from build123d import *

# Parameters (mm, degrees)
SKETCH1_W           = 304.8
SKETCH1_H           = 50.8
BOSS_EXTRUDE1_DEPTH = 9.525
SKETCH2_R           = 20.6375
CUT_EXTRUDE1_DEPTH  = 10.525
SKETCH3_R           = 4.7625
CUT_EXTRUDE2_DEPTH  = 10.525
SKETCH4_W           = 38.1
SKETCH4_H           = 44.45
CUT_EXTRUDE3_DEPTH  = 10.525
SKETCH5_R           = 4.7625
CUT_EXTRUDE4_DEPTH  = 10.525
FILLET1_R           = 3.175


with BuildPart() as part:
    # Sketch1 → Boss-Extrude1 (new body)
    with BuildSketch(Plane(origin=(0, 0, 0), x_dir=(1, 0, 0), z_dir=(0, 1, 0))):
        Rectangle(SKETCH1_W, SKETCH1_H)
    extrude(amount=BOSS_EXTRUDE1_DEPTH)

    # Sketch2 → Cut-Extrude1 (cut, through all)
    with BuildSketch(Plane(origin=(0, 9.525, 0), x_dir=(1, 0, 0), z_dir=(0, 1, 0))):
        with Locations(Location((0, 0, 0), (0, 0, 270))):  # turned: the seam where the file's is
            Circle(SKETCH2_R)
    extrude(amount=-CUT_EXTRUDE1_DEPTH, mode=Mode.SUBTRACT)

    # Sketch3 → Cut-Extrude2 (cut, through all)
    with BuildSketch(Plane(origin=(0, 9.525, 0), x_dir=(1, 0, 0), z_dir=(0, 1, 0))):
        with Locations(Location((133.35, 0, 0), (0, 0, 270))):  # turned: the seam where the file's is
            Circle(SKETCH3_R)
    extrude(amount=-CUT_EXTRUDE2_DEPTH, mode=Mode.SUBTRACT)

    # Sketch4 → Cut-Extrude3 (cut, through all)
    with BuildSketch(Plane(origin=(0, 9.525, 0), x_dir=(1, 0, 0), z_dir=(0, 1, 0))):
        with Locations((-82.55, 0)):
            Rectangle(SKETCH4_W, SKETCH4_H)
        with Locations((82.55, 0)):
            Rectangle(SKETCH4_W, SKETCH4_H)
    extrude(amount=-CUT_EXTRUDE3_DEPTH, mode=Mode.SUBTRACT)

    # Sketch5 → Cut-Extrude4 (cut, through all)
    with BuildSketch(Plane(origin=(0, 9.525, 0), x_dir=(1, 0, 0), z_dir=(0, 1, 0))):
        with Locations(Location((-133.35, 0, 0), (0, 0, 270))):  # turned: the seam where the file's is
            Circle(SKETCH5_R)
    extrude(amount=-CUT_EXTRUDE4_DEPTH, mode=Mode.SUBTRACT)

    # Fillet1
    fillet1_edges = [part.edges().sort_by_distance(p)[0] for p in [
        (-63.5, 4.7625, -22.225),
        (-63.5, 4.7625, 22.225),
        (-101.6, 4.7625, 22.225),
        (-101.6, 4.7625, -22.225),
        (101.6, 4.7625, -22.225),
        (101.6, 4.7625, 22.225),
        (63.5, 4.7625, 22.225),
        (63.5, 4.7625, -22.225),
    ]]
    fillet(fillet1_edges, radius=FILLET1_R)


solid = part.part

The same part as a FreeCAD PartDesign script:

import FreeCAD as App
import Part
import Sketcher

V = App.Vector
Q = App.Units.Quantity


def edges_at(feature, points):
    """Names of the edges that pass closest to the given points."""
    edges = feature.Shape.Edges
    near = lambda p: min(range(len(edges)), key=lambda i: edges[i].distToShape(Part.Vertex(*p))[0])
    return sorted({f"Edge{near(p) + 1}" for p in points})


def add_polygon(sketch, points):
    """Adds a closed chain of lines whose ends are joined by coincident constraints."""
    first, n = sketch.GeometryCount, len(points)
    for a, b in zip(points, points[1:] + points[:1]):
        sketch.addGeometry(Part.LineSegment(App.Vector(*a, 0), App.Vector(*b, 0)), False)
    for i in range(n):
        sketch.addConstraint(Sketcher.Constraint("Coincident", first + i, 2, first + (i + 1) % n, 1))

doc = App.newDocument("Part")
params = doc.addObject("Spreadsheet::Sheet", "Params")
for row, (alias, value) in enumerate([
    ("sketch1_width", "12 in"),
    ("sketch1_height", "2 in"),
    ("pad1_length", "0.375 in"),
    ("sketch2_diameter", "1.625 in"),
    ("sketch3_diameter", "0.375 in"),
    ("sketch4_width", "1.5 in"),
    ("sketch4_height", "1.75 in"),
    ("sketch5_diameter", "0.375 in"),
    ("fillet_radius", "0.125 in"),
], start=1):
    params.set(f"A{row}", alias)
    params.set(f"B{row}", "=" + value)
    params.setAlias(f"B{row}", alias)

body = doc.addObject("PartDesign::Body", "Body")

sketch1 = body.newObject("Sketcher::SketchObject", "Sketch")
sketch1.AttachmentSupport = (doc.getObject("XZ_Plane"), [""])
sketch1.MapMode = "FlatFace"
add_polygon(sketch1, [(-152, -25), (-152, 25), (152, 25), (152, -25)])
sketch1.addConstraint([
    Sketcher.Constraint("Vertical", 0),
    Sketcher.Constraint("Horizontal", 1),
    Sketcher.Constraint("Vertical", 2),
    Sketcher.Constraint("Horizontal", 3),
    Sketcher.Constraint("Symmetric", 0, 2, 2, 2, -1, 1),
    Sketcher.Constraint("DistanceX", 1, 1, 1, 2, Q("12 in")),
    Sketcher.Constraint("DistanceY", 0, 1, 0, 2, Q("2 in")),
])
sketch1.setExpression("Constraints[9]", "Params.sketch1_width")
sketch1.setExpression("Constraints[10]", "Params.sketch1_height")
pad1 = body.newObject("PartDesign::Pad", "Pad")
pad1.Profile = sketch1
pad1.setExpression("Length", "Params.pad1_length")
pad1.Reversed = True

sketch2 = body.newObject("Sketcher::SketchObject", "Sketch001")
sketch2.AttachmentSupport = (doc.getObject("XZ_Plane"), [""])
sketch2.MapMode = "FlatFace"
sketch2.AttachmentOffset = App.Placement(V(0, 0, -0.375 * 25.4), App.Rotation())
sketch2.addGeometry(Part.Circle(V(0, 0, 0), V(0, 0, 1), 21), False)
sketch2.addConstraint([
    Sketcher.Constraint("Coincident", 0, 3, -1, 1),
    Sketcher.Constraint("Diameter", 0, Q("1.625 in")),
])
sketch2.setExpression("Constraints[1]", "Params.sketch2_diameter")
pocket1 = body.newObject("PartDesign::Pocket", "Pocket")
pocket1.Profile = sketch2
pocket1.Type = "ThroughAll"
pocket1.Reversed = True

sketch3 = body.newObject("Sketcher::SketchObject", "Sketch002")
sketch3.AttachmentSupport = (doc.getObject("XZ_Plane"), [""])
sketch3.MapMode = "FlatFace"
sketch3.AttachmentOffset = App.Placement(V(0, 0, -0.375 * 25.4), App.Rotation())
sketch3.addGeometry(Part.Circle(V(133.3, 0, 0), V(0, 0, 1), 4.8), False)
sketch3.addConstraint([
    Sketcher.Constraint("PointOnObject", 0, 3, -1),
    Sketcher.Constraint("Diameter", 0, Q("0.375 in")),
    Sketcher.Constraint("DistanceX", -1, 1, 0, 3, Q("5.25 in")),
])
sketch3.setExpression("Constraints[1]", "Params.sketch3_diameter")
pocket2 = body.newObject("PartDesign::Pocket", "Pocket001")
pocket2.Profile = sketch3
pocket2.Type = "ThroughAll"
pocket2.Reversed = True

sketch4 = body.newObject("Sketcher::SketchObject", "Sketch003")
sketch4.AttachmentSupport = (doc.getObject("XZ_Plane"), [""])
sketch4.MapMode = "FlatFace"
sketch4.AttachmentOffset = App.Placement(V(0, 0, -0.375 * 25.4), App.Rotation())
add_polygon(sketch4, [(-102, -22), (-102, 22), (-64, 22), (-64, -22)])
add_polygon(sketch4, [(64, -22), (64, 22), (102, 22), (102, -22)])
sketch4.addConstraint([
    Sketcher.Constraint("Vertical", 0),
    Sketcher.Constraint("Horizontal", 1),
    Sketcher.Constraint("Vertical", 2),
    Sketcher.Constraint("Horizontal", 3),
    Sketcher.Constraint("Vertical", 4),
    Sketcher.Constraint("Horizontal", 5),
    Sketcher.Constraint("Vertical", 6),
    Sketcher.Constraint("Horizontal", 7),
    Sketcher.Constraint("Symmetric", 2, 2, 4, 2, -1, 1),
    Sketcher.Constraint("Symmetric", 0, 2, 6, 2, -1, 1),
    Sketcher.Constraint("Horizontal", 1, 2, 4, 2),
    Sketcher.Constraint("DistanceX", 1, 1, 1, 2, Q("1.5 in")),
    Sketcher.Constraint("DistanceX", 0, 2, -1, 1, Q("4 in")),
    Sketcher.Constraint("DistanceY", 0, 1, 0, 2, Q("1.75 in")),
])
sketch4.setExpression("Constraints[19]", "Params.sketch4_width")
sketch4.setExpression("Constraints[21]", "Params.sketch4_height")
pocket3 = body.newObject("PartDesign::Pocket", "Pocket002")
pocket3.Profile = sketch4
pocket3.Type = "ThroughAll"
pocket3.Reversed = True

sketch5 = body.newObject("Sketcher::SketchObject", "Sketch004")
sketch5.AttachmentSupport = (doc.getObject("XZ_Plane"), [""])
sketch5.MapMode = "FlatFace"
sketch5.AttachmentOffset = App.Placement(V(0, 0, -0.375 * 25.4), App.Rotation())
sketch5.addGeometry(Part.Circle(V(-133.3, 0, 0), V(0, 0, 1), 4.8), False)
sketch5.addConstraint([
    Sketcher.Constraint("PointOnObject", 0, 3, -1),
    Sketcher.Constraint("Diameter", 0, Q("0.375 in")),
    Sketcher.Constraint("DistanceX", 0, 3, -1, 1, Q("5.25 in")),
])
sketch5.setExpression("Constraints[1]", "Params.sketch5_diameter")
pocket4 = body.newObject("PartDesign::Pocket", "Pocket003")
pocket4.Profile = sketch5
pocket4.Type = "ThroughAll"
pocket4.Reversed = True
doc.recompute()

fillet = body.newObject("PartDesign::Fillet", "Fillet")
fillet.Base = (pocket4, edges_at(pocket4, [
    (-63.5, 4.763, -22.225),
    (-63.5, 4.763, 22.225),
    (-101.6, 4.763, 22.225),
    (-101.6, 4.763, -22.225),
    (101.6, 4.763, -22.225),
    (101.6, 4.763, 22.225),
    (63.5, 4.763, 22.225),
    (63.5, 4.763, -22.225),
]))
fillet.setExpression("Radius", "Params.fillet_radius")

doc.recompute()
